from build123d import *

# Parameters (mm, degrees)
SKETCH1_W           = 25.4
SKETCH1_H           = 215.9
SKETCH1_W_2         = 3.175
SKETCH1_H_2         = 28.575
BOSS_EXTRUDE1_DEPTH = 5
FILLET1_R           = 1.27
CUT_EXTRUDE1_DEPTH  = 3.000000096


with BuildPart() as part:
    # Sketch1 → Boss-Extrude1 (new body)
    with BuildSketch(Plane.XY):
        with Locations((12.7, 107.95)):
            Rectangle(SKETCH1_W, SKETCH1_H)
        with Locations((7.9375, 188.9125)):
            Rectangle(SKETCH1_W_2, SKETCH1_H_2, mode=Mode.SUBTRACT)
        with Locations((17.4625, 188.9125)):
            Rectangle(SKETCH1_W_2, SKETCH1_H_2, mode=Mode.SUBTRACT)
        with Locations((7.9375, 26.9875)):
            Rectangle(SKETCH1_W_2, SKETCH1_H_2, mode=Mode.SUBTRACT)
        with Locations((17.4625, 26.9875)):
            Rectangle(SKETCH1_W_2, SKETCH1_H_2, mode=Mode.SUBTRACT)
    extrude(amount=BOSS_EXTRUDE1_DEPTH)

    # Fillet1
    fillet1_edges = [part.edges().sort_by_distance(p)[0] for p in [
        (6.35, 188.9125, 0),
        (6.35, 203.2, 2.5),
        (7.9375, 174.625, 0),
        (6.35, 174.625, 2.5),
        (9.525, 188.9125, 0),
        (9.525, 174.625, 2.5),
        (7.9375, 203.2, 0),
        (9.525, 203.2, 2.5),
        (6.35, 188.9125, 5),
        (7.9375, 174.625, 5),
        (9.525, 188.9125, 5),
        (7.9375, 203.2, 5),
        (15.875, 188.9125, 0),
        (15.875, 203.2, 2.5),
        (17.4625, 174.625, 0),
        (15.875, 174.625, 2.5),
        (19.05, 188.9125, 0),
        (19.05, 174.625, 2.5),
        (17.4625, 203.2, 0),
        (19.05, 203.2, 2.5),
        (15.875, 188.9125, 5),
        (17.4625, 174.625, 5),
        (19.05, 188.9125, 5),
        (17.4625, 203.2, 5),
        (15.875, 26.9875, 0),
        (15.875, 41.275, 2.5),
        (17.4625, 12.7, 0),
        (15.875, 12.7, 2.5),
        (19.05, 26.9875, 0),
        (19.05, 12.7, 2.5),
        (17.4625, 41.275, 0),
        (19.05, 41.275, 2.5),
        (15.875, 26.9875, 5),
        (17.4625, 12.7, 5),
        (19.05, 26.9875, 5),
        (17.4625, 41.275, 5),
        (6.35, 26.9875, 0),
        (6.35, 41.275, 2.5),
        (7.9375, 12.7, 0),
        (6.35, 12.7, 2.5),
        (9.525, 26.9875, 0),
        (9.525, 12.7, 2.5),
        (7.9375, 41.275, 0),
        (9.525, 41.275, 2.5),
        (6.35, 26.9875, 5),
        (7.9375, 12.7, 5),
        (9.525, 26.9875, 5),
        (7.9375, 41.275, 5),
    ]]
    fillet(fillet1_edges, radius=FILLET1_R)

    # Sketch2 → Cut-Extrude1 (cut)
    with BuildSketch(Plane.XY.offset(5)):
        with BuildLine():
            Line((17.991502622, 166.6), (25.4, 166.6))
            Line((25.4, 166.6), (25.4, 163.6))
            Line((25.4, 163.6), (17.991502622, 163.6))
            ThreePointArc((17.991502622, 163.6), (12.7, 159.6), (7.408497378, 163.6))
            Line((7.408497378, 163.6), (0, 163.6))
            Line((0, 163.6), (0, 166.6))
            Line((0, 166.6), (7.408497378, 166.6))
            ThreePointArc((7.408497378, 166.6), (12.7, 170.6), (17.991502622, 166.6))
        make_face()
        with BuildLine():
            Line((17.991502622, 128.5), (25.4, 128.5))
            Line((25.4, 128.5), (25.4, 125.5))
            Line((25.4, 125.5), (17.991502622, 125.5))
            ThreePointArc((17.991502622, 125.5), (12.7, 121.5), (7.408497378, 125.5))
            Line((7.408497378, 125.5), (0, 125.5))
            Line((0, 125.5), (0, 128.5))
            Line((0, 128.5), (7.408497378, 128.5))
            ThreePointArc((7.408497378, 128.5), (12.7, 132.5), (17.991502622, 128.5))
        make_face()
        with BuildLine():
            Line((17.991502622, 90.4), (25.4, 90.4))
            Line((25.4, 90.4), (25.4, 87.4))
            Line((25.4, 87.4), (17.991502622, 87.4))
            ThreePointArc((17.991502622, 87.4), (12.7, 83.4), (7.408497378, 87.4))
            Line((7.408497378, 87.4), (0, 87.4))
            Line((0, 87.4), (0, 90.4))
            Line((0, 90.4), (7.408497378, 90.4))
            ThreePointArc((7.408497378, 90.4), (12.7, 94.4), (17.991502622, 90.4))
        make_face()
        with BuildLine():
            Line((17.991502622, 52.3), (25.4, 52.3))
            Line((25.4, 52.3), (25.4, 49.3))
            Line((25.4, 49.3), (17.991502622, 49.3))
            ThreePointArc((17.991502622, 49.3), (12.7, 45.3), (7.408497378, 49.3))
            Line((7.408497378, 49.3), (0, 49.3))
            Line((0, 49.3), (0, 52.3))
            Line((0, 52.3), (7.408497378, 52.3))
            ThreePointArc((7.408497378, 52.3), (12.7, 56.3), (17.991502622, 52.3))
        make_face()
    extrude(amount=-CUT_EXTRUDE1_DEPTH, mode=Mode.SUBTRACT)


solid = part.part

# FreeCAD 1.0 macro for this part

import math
import FreeCAD as App
import Part
import Sketcher
from FreeCAD import Vector
Q = App.Units.Quantity


def edges_at(feature, points):
    """Names of the edges that pass closest to the given points."""
    edges = feature.Shape.Edges
    near = lambda p: min(range(len(edges)), key=lambda i: edges[i].distToShape(Part.Vertex(*p))[0])
    return sorted({f"Edge{near(p) + 1}" for p in points})

doc = App.newDocument("Part")
body = doc.addObject("PartDesign::Body", "Body")

# Sketch on XY plane
sketch1 = body.newObject("Sketcher::SketchObject", "Sketch")
sketch1.AttachmentSupport = (doc.getObject("XY_Plane"), [""])
sketch1.MapMode = "FlatFace"
sketch1.addGeometry(Part.LineSegment(Vector(0, 215.9, 0), Vector(0, 0, 0)), False)
sketch1.addGeometry(Part.LineSegment(Vector(0, 0, 0), Vector(25.4, 0, 0)), False)
sketch1.addGeometry(Part.LineSegment(Vector(25.4, 0, 0), Vector(25.4, 215.9, 0)), False)
sketch1.addGeometry(Part.LineSegment(Vector(25.4, 215.9, 0), Vector(0, 215.9, 0)), False)
sketch1.addGeometry(Part.LineSegment(Vector(9.525, 12.7, 0), Vector(6.35, 12.7, 0)), False)
sketch1.addGeometry(Part.LineSegment(Vector(6.35, 12.7, 0), Vector(6.35, 41.275, 0)), False)
sketch1.addGeometry(Part.LineSegment(Vector(6.35, 41.275, 0), Vector(9.525, 41.275, 0)), False)
sketch1.addGeometry(Part.LineSegment(Vector(9.525, 41.275, 0), Vector(9.525, 12.7, 0)), False)
sketch1.addGeometry(Part.LineSegment(Vector(19.05, 12.7, 0), Vector(15.875, 12.7, 0)), False)
sketch1.addGeometry(Part.LineSegment(Vector(15.875, 12.7, 0), Vector(15.875, 41.275, 0)), False)
sketch1.addGeometry(Part.LineSegment(Vector(15.875, 41.275, 0), Vector(19.05, 41.275, 0)), False)
sketch1.addGeometry(Part.LineSegment(Vector(19.05, 41.275, 0), Vector(19.05, 12.7, 0)), False)
sketch1.addGeometry(Part.LineSegment(Vector(9.525, 174.625, 0), Vector(6.35, 174.625, 0)), False)
sketch1.addGeometry(Part.LineSegment(Vector(6.35, 174.625, 0), Vector(6.35, 203.2, 0)), False)
sketch1.addGeometry(Part.LineSegment(Vector(6.35, 203.2, 0), Vector(9.525, 203.2, 0)), False)
sketch1.addGeometry(Part.LineSegment(Vector(9.525, 203.2, 0), Vector(9.525, 174.625, 0)), False)
sketch1.addGeometry(Part.LineSegment(Vector(19.05, 174.625, 0), Vector(15.875, 174.625, 0)), False)
sketch1.addGeometry(Part.LineSegment(Vector(15.875, 174.625, 0), Vector(15.875, 203.2, 0)), False)
sketch1.addGeometry(Part.LineSegment(Vector(15.875, 203.2, 0), Vector(19.05, 203.2, 0)), False)
sketch1.addGeometry(Part.LineSegment(Vector(19.05, 203.2, 0), Vector(19.05, 174.625, 0)), False)
sketch1.addConstraint(Sketcher.Constraint("Coincident", 0, 2, 1, 1))
sketch1.addConstraint(Sketcher.Constraint("Coincident", 1, 2, 2, 1))
sketch1.addConstraint(Sketcher.Constraint("Coincident", 2, 2, 3, 1))
sketch1.addConstraint(Sketcher.Constraint("Coincident", 3, 2, 0, 1))
sketch1.addConstraint(Sketcher.Constraint("Coincident", 4, 2, 5, 1))
sketch1.addConstraint(Sketcher.Constraint("Coincident", 5, 2, 6, 1))
sketch1.addConstraint(Sketcher.Constraint("Coincident", 6, 2, 7, 1))
sketch1.addConstraint(Sketcher.Constraint("Coincident", 7, 2, 4, 1))
sketch1.addConstraint(Sketcher.Constraint("Coincident", 8, 2, 9, 1))
sketch1.addConstraint(Sketcher.Constraint("Coincident", 9, 2, 10, 1))
sketch1.addConstraint(Sketcher.Constraint("Coincident", 10, 2, 11, 1))
sketch1.addConstraint(Sketcher.Constraint("Coincident", 11, 2, 8, 1))
sketch1.addConstraint(Sketcher.Constraint("Coincident", 12, 2, 13, 1))
sketch1.addConstraint(Sketcher.Constraint("Coincident", 13, 2, 14, 1))
sketch1.addConstraint(Sketcher.Constraint("Coincident", 14, 2, 15, 1))
sketch1.addConstraint(Sketcher.Constraint("Coincident", 15, 2, 12, 1))
sketch1.addConstraint(Sketcher.Constraint("Coincident", 16, 2, 17, 1))
sketch1.addConstraint(Sketcher.Constraint("Coincident", 17, 2, 18, 1))
sketch1.addConstraint(Sketcher.Constraint("Coincident", 18, 2, 19, 1))
sketch1.addConstraint(Sketcher.Constraint("Coincident", 19, 2, 16, 1))
sketch1.addConstraint(Sketcher.Constraint("Vertical", 0))
sketch1.addConstraint(Sketcher.Constraint("Horizontal", 1))
sketch1.addConstraint(Sketcher.Constraint("Vertical", 2))
sketch1.addConstraint(Sketcher.Constraint("Horizontal", 3))
sketch1.addConstraint(Sketcher.Constraint("Horizontal", 4))
sketch1.addConstraint(Sketcher.Constraint("Vertical", 5))
sketch1.addConstraint(Sketcher.Constraint("Horizontal", 6))
sketch1.addConstraint(Sketcher.Constraint("Vertical", 7))
sketch1.addConstraint(Sketcher.Constraint("Horizontal", 8))
sketch1.addConstraint(Sketcher.Constraint("Vertical", 9))
sketch1.addConstraint(Sketcher.Constraint("Horizontal", 10))
sketch1.addConstraint(Sketcher.Constraint("Vertical", 11))
sketch1.addConstraint(Sketcher.Constraint("Horizontal", 12))
sketch1.addConstraint(Sketcher.Constraint("Vertical", 13))
sketch1.addConstraint(Sketcher.Constraint("Horizontal", 14))
sketch1.addConstraint(Sketcher.Constraint("Vertical", 15))
sketch1.addConstraint(Sketcher.Constraint("Horizontal", 16))
sketch1.addConstraint(Sketcher.Constraint("Vertical", 17))
sketch1.addConstraint(Sketcher.Constraint("Horizontal", 18))
sketch1.addConstraint(Sketcher.Constraint("Vertical", 19))
sketch1.addConstraint(Sketcher.Constraint("Coincident", 0, 2, -1, 1))
sketch1.addConstraint(Sketcher.Constraint("Horizontal", 7, 2, 8, 2))
sketch1.addConstraint(Sketcher.Constraint("Horizontal", 6, 2, 9, 2))
sketch1.addConstraint(Sketcher.Constraint("Horizontal", 15, 2, 16, 2))
sketch1.addConstraint(Sketcher.Constraint("Horizontal", 14, 2, 17, 2))
sketch1.addConstraint(Sketcher.Constraint("Vertical", 5, 2, 12, 2))
sketch1.addConstraint(Sketcher.Constraint("Vertical", 7, 2, 14, 2))
sketch1.addConstraint(Sketcher.Constraint("Vertical", 9, 2, 16, 2))
sketch1.addConstraint(Sketcher.Constraint("Vertical", 11, 2, 18, 2))
sketch1.addConstraint(Sketcher.Constraint("Equal", 6, 8))
sketch1.addConstraint(Sketcher.Constraint("Equal", 11, 13))
sketch1.addConstraint(Sketcher.Constraint("DistanceX", 1, 1, 1, 2, Q("1 in")))
sketch1.addConstraint(Sketcher.Constraint("DistanceY", 0, 2, 0, 1, Q("8.5 in")))
sketch1.addConstraint(Sketcher.Constraint("DistanceY", -1, 1, 13, 2, Q("8 in")))
sketch1.addConstraint(Sketcher.Constraint("DistanceY", 4, 2, 3, 2, Q("8 in")))
sketch1.addConstraint(Sketcher.Constraint("DistanceX", 5, 2, 10, 2, Q("0.5 in")))
sketch1.addConstraint(Sketcher.Constraint("DistanceX", 4, 2, 4, 1, Q("0.125 in")))
sketch1.addConstraint(Sketcher.Constraint("DistanceY", 5, 1, 5, 2, Q("1.125 in")))
sketch1.addConstraint(Sketcher.Constraint("DistanceX", -1, 1, 4, 2, Q("0.25 in")))
pad1 = body.newObject("PartDesign::Pad", "Pad")
pad1.Profile = sketch1
pad1.Length = 5
doc.recompute()

fillet = body.newObject("PartDesign::Fillet", "Fillet")
fillet.Base = (pad1, edges_at(pad1, [
    (6.35, 188.912, 0),
    (6.35, 203.2, 2.5),
    (7.938, 174.625, 0),
    (6.35, 174.625, 2.5),
    (9.525, 188.912, 0),
    (9.525, 174.625, 2.5),
    (7.938, 203.2, 0),
    (9.525, 203.2, 2.5),
    (6.35, 188.912, 5),
    (7.938, 174.625, 5),
    (9.525, 188.912, 5),
    (7.938, 203.2, 5),
    (15.875, 188.912, 0),
    (15.875, 203.2, 2.5),
    (17.462, 174.625, 0),
    (15.875, 174.625, 2.5),
    (19.05, 188.912, 0),
    (19.05, 174.625, 2.5),
    (17.462, 203.2, 0),
    (19.05, 203.2, 2.5),
    (15.875, 188.912, 5),
    (17.462, 174.625, 5),
    (19.05, 188.912, 5),
    (17.462, 203.2, 5),
    (15.875, 26.988, 0),
    (15.875, 41.275, 2.5),
    (17.462, 12.7, 0),
    (15.875, 12.7, 2.5),
    (19.05, 26.988, 0),
    (19.05, 12.7, 2.5),
    (17.462, 41.275, 0),
    (19.05, 41.275, 2.5),
    (15.875, 26.988, 5),
    (17.462, 12.7, 5),
    (19.05, 26.988, 5),
    (17.462, 41.275, 5),
    (6.35, 26.988, 0),
    (6.35, 41.275, 2.5),
    (7.938, 12.7, 0),
    (6.35, 12.7, 2.5),
    (9.525, 26.988, 0),
    (9.525, 12.7, 2.5),
    (7.938, 41.275, 0),
    (9.525, 41.275, 2.5),
    (6.35, 26.988, 5),
    (7.938, 12.7, 5),
    (9.525, 26.988, 5),
    (7.938, 41.275, 5),
]))
fillet.Radius = Q("0.05 in")

# Sketch on XY plane
sketch2 = body.newObject("Sketcher::SketchObject", "Sketch001")
sketch2.AttachmentSupport = (doc.getObject("XY_Plane"), [""])
sketch2.MapMode = "FlatFace"
sketch2.AttachmentOffset = App.Placement(Vector(0, 0, 5), App.Rotation())
sketch2.addGeometry(Part.LineSegment(Vector(25.4, 166.6, 0), Vector(17.991503, 166.6, 0)), False)
sketch2.addGeometry(Part.ArcOfCircle(Part.Circle(Vector(12.7, 165.1, 0), Vector(0, 0, 1), 5.5), math.radians(15.82662), math.radians(164.17338)), False)
sketch2.addGeometry(Part.LineSegment(Vector(7.408497, 166.6, 0), Vector(0, 166.6, 0)), False)
sketch2.addGeometry(Part.LineSegment(Vector(0, 166.6, 0), Vector(0, 163.6, 0)), False)
sketch2.addGeometry(Part.LineSegment(Vector(0, 163.6, 0), Vector(7.408497, 163.6, 0)), False)
sketch2.addGeometry(Part.ArcOfCircle(Part.Circle(Vector(12.7, 165.1, 0), Vector(0, 0, 1), 5.5), math.radians(-164.17338), math.radians(-15.82662)), False)
sketch2.addGeometry(Part.LineSegment(Vector(17.991503, 163.6, 0), Vector(25.4, 163.6, 0)), False)
sketch2.addGeometry(Part.LineSegment(Vector(25.4, 163.6, 0), Vector(25.4, 166.6, 0)), False)
sketch2.addGeometry(Part.LineSegment(Vector(25.4, 128.5, 0), Vector(17.991503, 128.5, 0)), False)
sketch2.addGeometry(Part.ArcOfCircle(Part.Circle(Vector(12.7, 127, 0), Vector(0, 0, 1), 5.5), math.radians(15.82662), math.radians(164.17338)), False)
sketch2.addGeometry(Part.LineSegment(Vector(7.408497, 128.5, 0), Vector(0, 128.5, 0)), False)
sketch2.addGeometry(Part.LineSegment(Vector(0, 128.5, 0), Vector(0, 125.5, 0)), False)
sketch2.addGeometry(Part.LineSegment(Vector(0, 125.5, 0), Vector(7.408497, 125.5, 0)), False)
sketch2.addGeometry(Part.ArcOfCircle(Part.Circle(Vector(12.7, 127, 0), Vector(0, 0, 1), 5.5), math.radians(-164.17338), math.radians(-15.82662)), False)
sketch2.addGeometry(Part.LineSegment(Vector(17.991503, 125.5, 0), Vector(25.4, 125.5, 0)), False)
sketch2.addGeometry(Part.LineSegment(Vector(25.4, 125.5, 0), Vector(25.4, 128.5, 0)), False)
sketch2.addGeometry(Part.LineSegment(Vector(25.4, 90.4, 0), Vector(17.991503, 90.4, 0)), False)
sketch2.addGeometry(Part.ArcOfCircle(Part.Circle(Vector(12.7, 88.9, 0), Vector(0, 0, 1), 5.5), math.radians(15.82662), math.radians(164.17338)), False)
sketch2.addGeometry(Part.LineSegment(Vector(7.408497, 90.4, 0), Vector(0, 90.4, 0)), False)
sketch2.addGeometry(Part.LineSegment(Vector(0, 90.4, 0), Vector(0, 87.4, 0)), False)
sketch2.addGeometry(Part.LineSegment(Vector(0, 87.4, 0), Vector(7.408497, 87.4, 0)), False)
sketch2.addGeometry(Part.ArcOfCircle(Part.Circle(Vector(12.7, 88.9, 0), Vector(0, 0, 1), 5.5), math.radians(-164.17338), math.radians(-15.82662)), False)
sketch2.addGeometry(Part.LineSegment(Vector(17.991503, 87.4, 0), Vector(25.4, 87.4, 0)), False)
sketch2.addGeometry(Part.LineSegment(Vector(25.4, 87.4, 0), Vector(25.4, 90.4, 0)), False)
sketch2.addGeometry(Part.LineSegment(Vector(25.4, 52.3, 0), Vector(17.991503, 52.3, 0)), False)
sketch2.addGeometry(Part.ArcOfCircle(Part.Circle(Vector(12.7, 50.8, 0), Vector(0, 0, 1), 5.5), math.radians(15.82662), math.radians(164.17338)), False)
sketch2.addGeometry(Part.LineSegment(Vector(7.408497, 52.3, 0), Vector(0, 52.3, 0)), False)
sketch2.addGeometry(Part.LineSegment(Vector(0, 52.3, 0), Vector(0, 49.3, 0)), False)
sketch2.addGeometry(Part.LineSegment(Vector(0, 49.3, 0), Vector(7.408497, 49.3, 0)), False)
sketch2.addGeometry(Part.ArcOfCircle(Part.Circle(Vector(12.7, 50.8, 0), Vector(0, 0, 1), 5.5), math.radians(-164.17338), math.radians(-15.82662)), False)
sketch2.addGeometry(Part.LineSegment(Vector(17.991503, 49.3, 0), Vector(25.4, 49.3, 0)), False)
sketch2.addGeometry(Part.LineSegment(Vector(25.4, 49.3, 0), Vector(25.4, 52.3, 0)), False)
sketch2.addConstraint(Sketcher.Constraint("Coincident", 0, 2, 1, 1))
sketch2.addConstraint(Sketcher.Constraint("Coincident", 1, 2, 2, 1))
sketch2.addConstraint(Sketcher.Constraint("Coincident", 2, 2, 3, 1))
sketch2.addConstraint(Sketcher.Constraint("Coincident", 3, 2, 4, 1))
sketch2.addConstraint(Sketcher.Constraint("Coincident", 4, 2, 5, 1))
sketch2.addConstraint(Sketcher.Constraint("Coincident", 5, 2, 6, 1))
sketch2.addConstraint(Sketcher.Constraint("Coincident", 6, 2, 7, 1))
sketch2.addConstraint(Sketcher.Constraint("Coincident", 7, 2, 0, 1))
sketch2.addConstraint(Sketcher.Constraint("Coincident", 8, 2, 9, 1))
sketch2.addConstraint(Sketcher.Constraint("Coincident", 9, 2, 10, 1))
sketch2.addConstraint(Sketcher.Constraint("Coincident", 10, 2, 11, 1))
sketch2.addConstraint(Sketcher.Constraint("Coincident", 11, 2, 12, 1))
sketch2.addConstraint(Sketcher.Constraint("Coincident", 12, 2, 13, 1))
sketch2.addConstraint(Sketcher.Constraint("Coincident", 13, 2, 14, 1))
sketch2.addConstraint(Sketcher.Constraint("Coincident", 14, 2, 15, 1))
sketch2.addConstraint(Sketcher.Constraint("Coincident", 15, 2, 8, 1))
sketch2.addConstraint(Sketcher.Constraint("Coincident", 16, 2, 17, 1))
sketch2.addConstraint(Sketcher.Constraint("Coincident", 17, 2, 18, 1))
sketch2.addConstraint(Sketcher.Constraint("Coincident", 18, 2, 19, 1))
sketch2.addConstraint(Sketcher.Constraint("Coincident", 19, 2, 20, 1))
sketch2.addConstraint(Sketcher.Constraint("Coincident", 20, 2, 21, 1))
sketch2.addConstraint(Sketcher.Constraint("Coincident", 21, 2, 22, 1))
sketch2.addConstraint(Sketcher.Constraint("Coincident", 22, 2, 23, 1))
sketch2.addConstraint(Sketcher.Constraint("Coincident", 23, 2, 16, 1))
sketch2.addConstraint(Sketcher.Constraint("Coincident", 24, 2, 25, 1))
sketch2.addConstraint(Sketcher.Constraint("Coincident", 25, 2, 26, 1))
sketch2.addConstraint(Sketcher.Constraint("Coincident", 26, 2, 27, 1))
sketch2.addConstraint(Sketcher.Constraint("Coincident", 27, 2, 28, 1))
sketch2.addConstraint(Sketcher.Constraint("Coincident", 28, 2, 29, 1))
sketch2.addConstraint(Sketcher.Constraint("Coincident", 29, 2, 30, 1))
sketch2.addConstraint(Sketcher.Constraint("Coincident", 30, 2, 31, 1))
sketch2.addConstraint(Sketcher.Constraint("Coincident", 31, 2, 24, 1))
sketch2.addConstraint(Sketcher.Constraint("Horizontal", 0))
sketch2.addConstraint(Sketcher.Constraint("Horizontal", 2))
sketch2.addConstraint(Sketcher.Constraint("Vertical", 3))
sketch2.addConstraint(Sketcher.Constraint("Horizontal", 4))
sketch2.addConstraint(Sketcher.Constraint("Horizontal", 6))
sketch2.addConstraint(Sketcher.Constraint("Vertical", 7))
sketch2.addConstraint(Sketcher.Constraint("Horizontal", 8))
sketch2.addConstraint(Sketcher.Constraint("Horizontal", 10))
sketch2.addConstraint(Sketcher.Constraint("Vertical", 11))
sketch2.addConstraint(Sketcher.Constraint("Horizontal", 12))
sketch2.addConstraint(Sketcher.Constraint("Horizontal", 14))
sketch2.addConstraint(Sketcher.Constraint("Vertical", 15))
sketch2.addConstraint(Sketcher.Constraint("Horizontal", 16))
sketch2.addConstraint(Sketcher.Constraint("Horizontal", 18))
sketch2.addConstraint(Sketcher.Constraint("Vertical", 19))
sketch2.addConstraint(Sketcher.Constraint("Horizontal", 20))
sketch2.addConstraint(Sketcher.Constraint("Horizontal", 22))
sketch2.addConstraint(Sketcher.Constraint("Vertical", 23))
sketch2.addConstraint(Sketcher.Constraint("Horizontal", 24))
sketch2.addConstraint(Sketcher.Constraint("Horizontal", 26))
sketch2.addConstraint(Sketcher.Constraint("Vertical", 27))
sketch2.addConstraint(Sketcher.Constraint("Horizontal", 28))
sketch2.addConstraint(Sketcher.Constraint("Horizontal", 30))
sketch2.addConstraint(Sketcher.Constraint("Vertical", 31))
sketch2.addConstraint(Sketcher.Constraint("Coincident", 5, 3, 1, 3))
sketch2.addConstraint(Sketcher.Constraint("Coincident", 13, 3, 9, 3))
sketch2.addConstraint(Sketcher.Constraint("Coincident", 21, 3, 17, 3))
sketch2.addConstraint(Sketcher.Constraint("Coincident", 29, 3, 25, 3))
sketch2.addConstraint(Sketcher.Constraint("Equal", 1, 5))
sketch2.addConstraint(Sketcher.Constraint("Equal", 5, 9))
sketch2.addConstraint(Sketcher.Constraint("Equal", 9, 13))
sketch2.addConstraint(Sketcher.Constraint("Equal", 13, 17))
sketch2.addConstraint(Sketcher.Constraint("Equal", 17, 21))
sketch2.addConstraint(Sketcher.Constraint("Equal", 21, 25))
sketch2.addConstraint(Sketcher.Constraint("Equal", 25, 29))
sketch2.addConstraint(Sketcher.Constraint("PointOnObject", 2, 2, -2))
sketch2.addConstraint(Sketcher.Constraint("PointOnObject", 10, 2, -2))
sketch2.addConstraint(Sketcher.Constraint("PointOnObject", 18, 2, -2))
sketch2.addConstraint(Sketcher.Constraint("PointOnObject", 26, 2, -2))
sketch2.addConstraint(Sketcher.Constraint("Horizontal", 0, 2, 1, 2))
sketch2.addConstraint(Sketcher.Constraint("Horizontal", 4, 2, 5, 2))
sketch2.addConstraint(Sketcher.Constraint("Horizontal", 8, 2, 9, 2))
sketch2.addConstraint(Sketcher.Constraint("Horizontal", 12, 2, 13, 2))
sketch2.addConstraint(Sketcher.Constraint("Horizontal", 16, 2, 17, 2))
sketch2.addConstraint(Sketcher.Constraint("Horizontal", 20, 2, 21, 2))
sketch2.addConstraint(Sketcher.Constraint("Horizontal", 24, 2, 25, 2))
sketch2.addConstraint(Sketcher.Constraint("Horizontal", 28, 2, 29, 2))
sketch2.addConstraint(Sketcher.Constraint("Vertical", 5, 3, 9, 3))
sketch2.addConstraint(Sketcher.Constraint("Vertical", 13, 3, 17, 3))
sketch2.addConstraint(Sketcher.Constraint("Vertical", 21, 3, 25, 3))
sketch2.addConstraint(Sketcher.Constraint("Vertical", 1, 2, 4, 2))
sketch2.addConstraint(Sketcher.Constraint("Vertical", 5, 2, 8, 2))
sketch2.addConstraint(Sketcher.Constraint("Vertical", 9, 2, 12, 2))
sketch2.addConstraint(Sketcher.Constraint("Vertical", 7, 2, 14, 2))
sketch2.addConstraint(Sketcher.Constraint("Vertical", 13, 2, 16, 2))
sketch2.addConstraint(Sketcher.Constraint("Vertical", 17, 2, 20, 2))
sketch2.addConstraint(Sketcher.Constraint("Vertical", 15, 2, 22, 2))
sketch2.addConstraint(Sketcher.Constraint("Vertical", 21, 2, 24, 2))
sketch2.addConstraint(Sketcher.Constraint("Vertical", 25, 2, 28, 2))
sketch2.addConstraint(Sketcher.Constraint("Vertical", 23, 2, 30, 2))
sketch2.addConstraint(Sketcher.Constraint("Equal", 0, 2))
sketch2.addConstraint(Sketcher.Constraint("DistanceY", -1, 1, 9, 3, Q("5 in")))
sketch2.addConstraint(Sketcher.Constraint("DistanceY", -1, 1, 25, 3, Q("2 in")))
sketch2.addConstraint(Sketcher.Constraint("DistanceX", -1, 1, 6, 2, Q("1 in")))
sketch2.addConstraint(Sketcher.Constraint("DistanceY", 17, 3, 1, 3, Q("3 in")))
sketch2.addConstraint(Sketcher.Constraint("DistanceY", -1, 1, 1, 3, Q("6.5 in")))
sketch2.addConstraint(Sketcher.Constraint("Radius", 1, Q("5.5 mm")))
sketch2.addConstraint(Sketcher.Constraint("DistanceY", 3, 2, 3, 1, Q("3 mm")))
pocket1 = body.newObject("PartDesign::Pocket", "Pocket")
pocket1.Profile = sketch2
pocket1.Length = 3

doc.recompute()
